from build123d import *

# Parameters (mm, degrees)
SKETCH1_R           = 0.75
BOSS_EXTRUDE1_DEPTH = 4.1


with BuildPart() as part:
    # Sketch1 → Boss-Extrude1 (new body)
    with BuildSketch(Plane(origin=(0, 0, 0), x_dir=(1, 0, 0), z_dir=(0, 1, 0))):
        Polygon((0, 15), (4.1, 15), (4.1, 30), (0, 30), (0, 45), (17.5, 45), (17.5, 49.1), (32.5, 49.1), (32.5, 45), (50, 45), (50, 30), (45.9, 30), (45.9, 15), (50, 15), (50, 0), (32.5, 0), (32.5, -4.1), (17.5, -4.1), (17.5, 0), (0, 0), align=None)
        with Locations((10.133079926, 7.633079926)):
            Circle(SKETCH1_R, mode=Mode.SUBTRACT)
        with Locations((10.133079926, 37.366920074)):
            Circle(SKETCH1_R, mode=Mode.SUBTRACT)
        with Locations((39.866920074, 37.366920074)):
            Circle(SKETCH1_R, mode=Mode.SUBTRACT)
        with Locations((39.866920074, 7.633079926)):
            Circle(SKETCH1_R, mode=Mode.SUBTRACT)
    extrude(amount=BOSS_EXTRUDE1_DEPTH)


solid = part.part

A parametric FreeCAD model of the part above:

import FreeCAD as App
import Part
import Sketcher
from FreeCAD import Vector
Q = App.Units.Quantity


def add_polygon(sketch, points):
    """Adds a closed chain of lines whose ends are joined by coincident constraints."""
    first, n = sketch.GeometryCount, len(points)
    for a, b in zip(points, points[1:] + points[:1]):
        sketch.addGeometry(Part.LineSegment(App.Vector(*a, 0), App.Vector(*b, 0)), False)
    for i in range(n):
        sketch.addConstraint(Sketcher.Constraint("Coincident", first + i, 2, first + (i + 1) % n, 1))

doc = App.newDocument("Part")
body = doc.addObject("PartDesign::Body", "Body")

sketch1 = doc.addObject("Sketcher::SketchObject", "Sketch")
body.addObject(sketch1)
sketch1.AttachmentSupport = (doc.XZ_Plane, [""])
sketch1.MapMode = "FlatFace"
add_polygon(sketch1, [(4.1, -15), (0, -15), (0, 0), (17.5, 0), (17.5, 4.1), (32.5, 4.1), (32.5, 0), (50, 0), (50, -15), (45.9, -15), (45.9, -30), (50, -30), (50, -45), (32.5, -45), (32.5, -49.1), (17.5, -49.1), (17.5, -45), (0, -45), (0, -30), (4.1, -30)])
sketch1.addGeometry(Part.Circle(Vector(39.86692, -7.63308, 0), Vector(0, 0, 1), 0.75), False)
sketch1.addGeometry(Part.Circle(Vector(10.13308, -7.63308, 0), Vector(0, 0, 1), 0.75), False)
sketch1.addGeometry(Part.Circle(Vector(39.86692, -37.36692, 0), Vector(0, 0, 1), 0.75), False)
sketch1.addGeometry(Part.Circle(Vector(10.13308, -37.36692, 0), Vector(0, 0, 1), 0.75), False)
sketch1.addConstraint([
    Sketcher.Constraint("Horizontal", 0),
    Sketcher.Constraint("Vertical", 1),
    Sketcher.Constraint("Horizontal", 2),
    Sketcher.Constraint("Vertical", 3),
    Sketcher.Constraint("Horizontal", 4),
    Sketcher.Constraint("Vertical", 5),
    Sketcher.Constraint("Horizontal", 6),
    Sketcher.Constraint("Vertical", 7),
    Sketcher.Constraint("Horizontal", 8),
    Sketcher.Constraint("Vertical", 9),
    Sketcher.Constraint("Horizontal", 10),
    Sketcher.Constraint("Vertical", 11),
    Sketcher.Constraint("Horizontal", 12),
    Sketcher.Constraint("Vertical", 13),
    Sketcher.Constraint("Horizontal", 14),
    Sketcher.Constraint("Vertical", 15),
    Sketcher.Constraint("Horizontal", 16),
    Sketcher.Constraint("Vertical", 17),
    Sketcher.Constraint("Horizontal", 18),
    Sketcher.Constraint("Vertical", 19),
    Sketcher.Constraint("Coincident", 1, 2, -1, 1),
    Sketcher.Constraint("Equal", 20, 21),
    Sketcher.Constraint("Equal", 21, 22),
    Sketcher.Constraint("Equal", 22, 23),
    Sketcher.Constraint("PointOnObject", 5, 2, -1),
    Sketcher.Constraint("PointOnObject", 16, 2, -2),
    Sketcher.Constraint("Horizontal", 20, 3, 21, 3),
    Sketcher.Constraint("Horizontal", 22, 3, 23, 3),
    Sketcher.Constraint("Horizontal", 0, 2, 7, 2),
    Sketcher.Constraint("Horizontal", 12, 2, 15, 2),
    Sketcher.Constraint("Horizontal", 10, 2, 17, 2),
    Sketcher.Constraint("Vertical", 20, 3, 22, 3),
    Sketcher.Constraint("Vertical", 21, 3, 23, 3),
    Sketcher.Constraint("Vertical", 7, 2, 10, 2),
    Sketcher.Constraint("Vertical", 5, 2, 12, 2),
    Sketcher.Constraint("Vertical", 3, 2, 14, 2),
    Sketcher.Constraint("Equal", 2, 6),
    Sketcher.Constraint("Equal", 0, 8),
    Sketcher.Constraint("Equal", 14, 1),
    Sketcher.Constraint("Equal", 18, 3),
    Sketcher.Constraint("Equal", 7, 9),
    Sketcher.Constraint("Equal", 9, 11),
    Sketcher.Constraint("Equal", 5, 13),
    Sketcher.Constraint("Diameter", 20, Q("1.5 mm")),
    Sketcher.Constraint("DistanceX", 4, 1, 4, 2, Q("15 mm")),
    Sketcher.Constraint("DistanceX", 0, 2, 0, 1, Q("4.1 mm")),
    Sketcher.Constraint("DistanceX", 2, 1, 2, 2, Q("17.5 mm")),
    Sketcher.Constraint("DistanceX", -1, 1, 20, 3, Q("39.86692 mm")),
    Sketcher.Constraint("DistanceY", 20, 3, -1, 1, Q("7.63308 mm")),
    Sketcher.Constraint("DistanceX", -1, 1, 21, 3, Q("10.13308 mm")),
    Sketcher.Constraint("DistanceY", 22, 3, -1, 1, Q("37.36692 mm")),
])
pad1 = doc.addObject("PartDesign::Pad", "Pad")
body.addObject(pad1)
pad1.Profile = sketch1
pad1.Length = 4.1
pad1.Reversed = True

doc.recompute()
